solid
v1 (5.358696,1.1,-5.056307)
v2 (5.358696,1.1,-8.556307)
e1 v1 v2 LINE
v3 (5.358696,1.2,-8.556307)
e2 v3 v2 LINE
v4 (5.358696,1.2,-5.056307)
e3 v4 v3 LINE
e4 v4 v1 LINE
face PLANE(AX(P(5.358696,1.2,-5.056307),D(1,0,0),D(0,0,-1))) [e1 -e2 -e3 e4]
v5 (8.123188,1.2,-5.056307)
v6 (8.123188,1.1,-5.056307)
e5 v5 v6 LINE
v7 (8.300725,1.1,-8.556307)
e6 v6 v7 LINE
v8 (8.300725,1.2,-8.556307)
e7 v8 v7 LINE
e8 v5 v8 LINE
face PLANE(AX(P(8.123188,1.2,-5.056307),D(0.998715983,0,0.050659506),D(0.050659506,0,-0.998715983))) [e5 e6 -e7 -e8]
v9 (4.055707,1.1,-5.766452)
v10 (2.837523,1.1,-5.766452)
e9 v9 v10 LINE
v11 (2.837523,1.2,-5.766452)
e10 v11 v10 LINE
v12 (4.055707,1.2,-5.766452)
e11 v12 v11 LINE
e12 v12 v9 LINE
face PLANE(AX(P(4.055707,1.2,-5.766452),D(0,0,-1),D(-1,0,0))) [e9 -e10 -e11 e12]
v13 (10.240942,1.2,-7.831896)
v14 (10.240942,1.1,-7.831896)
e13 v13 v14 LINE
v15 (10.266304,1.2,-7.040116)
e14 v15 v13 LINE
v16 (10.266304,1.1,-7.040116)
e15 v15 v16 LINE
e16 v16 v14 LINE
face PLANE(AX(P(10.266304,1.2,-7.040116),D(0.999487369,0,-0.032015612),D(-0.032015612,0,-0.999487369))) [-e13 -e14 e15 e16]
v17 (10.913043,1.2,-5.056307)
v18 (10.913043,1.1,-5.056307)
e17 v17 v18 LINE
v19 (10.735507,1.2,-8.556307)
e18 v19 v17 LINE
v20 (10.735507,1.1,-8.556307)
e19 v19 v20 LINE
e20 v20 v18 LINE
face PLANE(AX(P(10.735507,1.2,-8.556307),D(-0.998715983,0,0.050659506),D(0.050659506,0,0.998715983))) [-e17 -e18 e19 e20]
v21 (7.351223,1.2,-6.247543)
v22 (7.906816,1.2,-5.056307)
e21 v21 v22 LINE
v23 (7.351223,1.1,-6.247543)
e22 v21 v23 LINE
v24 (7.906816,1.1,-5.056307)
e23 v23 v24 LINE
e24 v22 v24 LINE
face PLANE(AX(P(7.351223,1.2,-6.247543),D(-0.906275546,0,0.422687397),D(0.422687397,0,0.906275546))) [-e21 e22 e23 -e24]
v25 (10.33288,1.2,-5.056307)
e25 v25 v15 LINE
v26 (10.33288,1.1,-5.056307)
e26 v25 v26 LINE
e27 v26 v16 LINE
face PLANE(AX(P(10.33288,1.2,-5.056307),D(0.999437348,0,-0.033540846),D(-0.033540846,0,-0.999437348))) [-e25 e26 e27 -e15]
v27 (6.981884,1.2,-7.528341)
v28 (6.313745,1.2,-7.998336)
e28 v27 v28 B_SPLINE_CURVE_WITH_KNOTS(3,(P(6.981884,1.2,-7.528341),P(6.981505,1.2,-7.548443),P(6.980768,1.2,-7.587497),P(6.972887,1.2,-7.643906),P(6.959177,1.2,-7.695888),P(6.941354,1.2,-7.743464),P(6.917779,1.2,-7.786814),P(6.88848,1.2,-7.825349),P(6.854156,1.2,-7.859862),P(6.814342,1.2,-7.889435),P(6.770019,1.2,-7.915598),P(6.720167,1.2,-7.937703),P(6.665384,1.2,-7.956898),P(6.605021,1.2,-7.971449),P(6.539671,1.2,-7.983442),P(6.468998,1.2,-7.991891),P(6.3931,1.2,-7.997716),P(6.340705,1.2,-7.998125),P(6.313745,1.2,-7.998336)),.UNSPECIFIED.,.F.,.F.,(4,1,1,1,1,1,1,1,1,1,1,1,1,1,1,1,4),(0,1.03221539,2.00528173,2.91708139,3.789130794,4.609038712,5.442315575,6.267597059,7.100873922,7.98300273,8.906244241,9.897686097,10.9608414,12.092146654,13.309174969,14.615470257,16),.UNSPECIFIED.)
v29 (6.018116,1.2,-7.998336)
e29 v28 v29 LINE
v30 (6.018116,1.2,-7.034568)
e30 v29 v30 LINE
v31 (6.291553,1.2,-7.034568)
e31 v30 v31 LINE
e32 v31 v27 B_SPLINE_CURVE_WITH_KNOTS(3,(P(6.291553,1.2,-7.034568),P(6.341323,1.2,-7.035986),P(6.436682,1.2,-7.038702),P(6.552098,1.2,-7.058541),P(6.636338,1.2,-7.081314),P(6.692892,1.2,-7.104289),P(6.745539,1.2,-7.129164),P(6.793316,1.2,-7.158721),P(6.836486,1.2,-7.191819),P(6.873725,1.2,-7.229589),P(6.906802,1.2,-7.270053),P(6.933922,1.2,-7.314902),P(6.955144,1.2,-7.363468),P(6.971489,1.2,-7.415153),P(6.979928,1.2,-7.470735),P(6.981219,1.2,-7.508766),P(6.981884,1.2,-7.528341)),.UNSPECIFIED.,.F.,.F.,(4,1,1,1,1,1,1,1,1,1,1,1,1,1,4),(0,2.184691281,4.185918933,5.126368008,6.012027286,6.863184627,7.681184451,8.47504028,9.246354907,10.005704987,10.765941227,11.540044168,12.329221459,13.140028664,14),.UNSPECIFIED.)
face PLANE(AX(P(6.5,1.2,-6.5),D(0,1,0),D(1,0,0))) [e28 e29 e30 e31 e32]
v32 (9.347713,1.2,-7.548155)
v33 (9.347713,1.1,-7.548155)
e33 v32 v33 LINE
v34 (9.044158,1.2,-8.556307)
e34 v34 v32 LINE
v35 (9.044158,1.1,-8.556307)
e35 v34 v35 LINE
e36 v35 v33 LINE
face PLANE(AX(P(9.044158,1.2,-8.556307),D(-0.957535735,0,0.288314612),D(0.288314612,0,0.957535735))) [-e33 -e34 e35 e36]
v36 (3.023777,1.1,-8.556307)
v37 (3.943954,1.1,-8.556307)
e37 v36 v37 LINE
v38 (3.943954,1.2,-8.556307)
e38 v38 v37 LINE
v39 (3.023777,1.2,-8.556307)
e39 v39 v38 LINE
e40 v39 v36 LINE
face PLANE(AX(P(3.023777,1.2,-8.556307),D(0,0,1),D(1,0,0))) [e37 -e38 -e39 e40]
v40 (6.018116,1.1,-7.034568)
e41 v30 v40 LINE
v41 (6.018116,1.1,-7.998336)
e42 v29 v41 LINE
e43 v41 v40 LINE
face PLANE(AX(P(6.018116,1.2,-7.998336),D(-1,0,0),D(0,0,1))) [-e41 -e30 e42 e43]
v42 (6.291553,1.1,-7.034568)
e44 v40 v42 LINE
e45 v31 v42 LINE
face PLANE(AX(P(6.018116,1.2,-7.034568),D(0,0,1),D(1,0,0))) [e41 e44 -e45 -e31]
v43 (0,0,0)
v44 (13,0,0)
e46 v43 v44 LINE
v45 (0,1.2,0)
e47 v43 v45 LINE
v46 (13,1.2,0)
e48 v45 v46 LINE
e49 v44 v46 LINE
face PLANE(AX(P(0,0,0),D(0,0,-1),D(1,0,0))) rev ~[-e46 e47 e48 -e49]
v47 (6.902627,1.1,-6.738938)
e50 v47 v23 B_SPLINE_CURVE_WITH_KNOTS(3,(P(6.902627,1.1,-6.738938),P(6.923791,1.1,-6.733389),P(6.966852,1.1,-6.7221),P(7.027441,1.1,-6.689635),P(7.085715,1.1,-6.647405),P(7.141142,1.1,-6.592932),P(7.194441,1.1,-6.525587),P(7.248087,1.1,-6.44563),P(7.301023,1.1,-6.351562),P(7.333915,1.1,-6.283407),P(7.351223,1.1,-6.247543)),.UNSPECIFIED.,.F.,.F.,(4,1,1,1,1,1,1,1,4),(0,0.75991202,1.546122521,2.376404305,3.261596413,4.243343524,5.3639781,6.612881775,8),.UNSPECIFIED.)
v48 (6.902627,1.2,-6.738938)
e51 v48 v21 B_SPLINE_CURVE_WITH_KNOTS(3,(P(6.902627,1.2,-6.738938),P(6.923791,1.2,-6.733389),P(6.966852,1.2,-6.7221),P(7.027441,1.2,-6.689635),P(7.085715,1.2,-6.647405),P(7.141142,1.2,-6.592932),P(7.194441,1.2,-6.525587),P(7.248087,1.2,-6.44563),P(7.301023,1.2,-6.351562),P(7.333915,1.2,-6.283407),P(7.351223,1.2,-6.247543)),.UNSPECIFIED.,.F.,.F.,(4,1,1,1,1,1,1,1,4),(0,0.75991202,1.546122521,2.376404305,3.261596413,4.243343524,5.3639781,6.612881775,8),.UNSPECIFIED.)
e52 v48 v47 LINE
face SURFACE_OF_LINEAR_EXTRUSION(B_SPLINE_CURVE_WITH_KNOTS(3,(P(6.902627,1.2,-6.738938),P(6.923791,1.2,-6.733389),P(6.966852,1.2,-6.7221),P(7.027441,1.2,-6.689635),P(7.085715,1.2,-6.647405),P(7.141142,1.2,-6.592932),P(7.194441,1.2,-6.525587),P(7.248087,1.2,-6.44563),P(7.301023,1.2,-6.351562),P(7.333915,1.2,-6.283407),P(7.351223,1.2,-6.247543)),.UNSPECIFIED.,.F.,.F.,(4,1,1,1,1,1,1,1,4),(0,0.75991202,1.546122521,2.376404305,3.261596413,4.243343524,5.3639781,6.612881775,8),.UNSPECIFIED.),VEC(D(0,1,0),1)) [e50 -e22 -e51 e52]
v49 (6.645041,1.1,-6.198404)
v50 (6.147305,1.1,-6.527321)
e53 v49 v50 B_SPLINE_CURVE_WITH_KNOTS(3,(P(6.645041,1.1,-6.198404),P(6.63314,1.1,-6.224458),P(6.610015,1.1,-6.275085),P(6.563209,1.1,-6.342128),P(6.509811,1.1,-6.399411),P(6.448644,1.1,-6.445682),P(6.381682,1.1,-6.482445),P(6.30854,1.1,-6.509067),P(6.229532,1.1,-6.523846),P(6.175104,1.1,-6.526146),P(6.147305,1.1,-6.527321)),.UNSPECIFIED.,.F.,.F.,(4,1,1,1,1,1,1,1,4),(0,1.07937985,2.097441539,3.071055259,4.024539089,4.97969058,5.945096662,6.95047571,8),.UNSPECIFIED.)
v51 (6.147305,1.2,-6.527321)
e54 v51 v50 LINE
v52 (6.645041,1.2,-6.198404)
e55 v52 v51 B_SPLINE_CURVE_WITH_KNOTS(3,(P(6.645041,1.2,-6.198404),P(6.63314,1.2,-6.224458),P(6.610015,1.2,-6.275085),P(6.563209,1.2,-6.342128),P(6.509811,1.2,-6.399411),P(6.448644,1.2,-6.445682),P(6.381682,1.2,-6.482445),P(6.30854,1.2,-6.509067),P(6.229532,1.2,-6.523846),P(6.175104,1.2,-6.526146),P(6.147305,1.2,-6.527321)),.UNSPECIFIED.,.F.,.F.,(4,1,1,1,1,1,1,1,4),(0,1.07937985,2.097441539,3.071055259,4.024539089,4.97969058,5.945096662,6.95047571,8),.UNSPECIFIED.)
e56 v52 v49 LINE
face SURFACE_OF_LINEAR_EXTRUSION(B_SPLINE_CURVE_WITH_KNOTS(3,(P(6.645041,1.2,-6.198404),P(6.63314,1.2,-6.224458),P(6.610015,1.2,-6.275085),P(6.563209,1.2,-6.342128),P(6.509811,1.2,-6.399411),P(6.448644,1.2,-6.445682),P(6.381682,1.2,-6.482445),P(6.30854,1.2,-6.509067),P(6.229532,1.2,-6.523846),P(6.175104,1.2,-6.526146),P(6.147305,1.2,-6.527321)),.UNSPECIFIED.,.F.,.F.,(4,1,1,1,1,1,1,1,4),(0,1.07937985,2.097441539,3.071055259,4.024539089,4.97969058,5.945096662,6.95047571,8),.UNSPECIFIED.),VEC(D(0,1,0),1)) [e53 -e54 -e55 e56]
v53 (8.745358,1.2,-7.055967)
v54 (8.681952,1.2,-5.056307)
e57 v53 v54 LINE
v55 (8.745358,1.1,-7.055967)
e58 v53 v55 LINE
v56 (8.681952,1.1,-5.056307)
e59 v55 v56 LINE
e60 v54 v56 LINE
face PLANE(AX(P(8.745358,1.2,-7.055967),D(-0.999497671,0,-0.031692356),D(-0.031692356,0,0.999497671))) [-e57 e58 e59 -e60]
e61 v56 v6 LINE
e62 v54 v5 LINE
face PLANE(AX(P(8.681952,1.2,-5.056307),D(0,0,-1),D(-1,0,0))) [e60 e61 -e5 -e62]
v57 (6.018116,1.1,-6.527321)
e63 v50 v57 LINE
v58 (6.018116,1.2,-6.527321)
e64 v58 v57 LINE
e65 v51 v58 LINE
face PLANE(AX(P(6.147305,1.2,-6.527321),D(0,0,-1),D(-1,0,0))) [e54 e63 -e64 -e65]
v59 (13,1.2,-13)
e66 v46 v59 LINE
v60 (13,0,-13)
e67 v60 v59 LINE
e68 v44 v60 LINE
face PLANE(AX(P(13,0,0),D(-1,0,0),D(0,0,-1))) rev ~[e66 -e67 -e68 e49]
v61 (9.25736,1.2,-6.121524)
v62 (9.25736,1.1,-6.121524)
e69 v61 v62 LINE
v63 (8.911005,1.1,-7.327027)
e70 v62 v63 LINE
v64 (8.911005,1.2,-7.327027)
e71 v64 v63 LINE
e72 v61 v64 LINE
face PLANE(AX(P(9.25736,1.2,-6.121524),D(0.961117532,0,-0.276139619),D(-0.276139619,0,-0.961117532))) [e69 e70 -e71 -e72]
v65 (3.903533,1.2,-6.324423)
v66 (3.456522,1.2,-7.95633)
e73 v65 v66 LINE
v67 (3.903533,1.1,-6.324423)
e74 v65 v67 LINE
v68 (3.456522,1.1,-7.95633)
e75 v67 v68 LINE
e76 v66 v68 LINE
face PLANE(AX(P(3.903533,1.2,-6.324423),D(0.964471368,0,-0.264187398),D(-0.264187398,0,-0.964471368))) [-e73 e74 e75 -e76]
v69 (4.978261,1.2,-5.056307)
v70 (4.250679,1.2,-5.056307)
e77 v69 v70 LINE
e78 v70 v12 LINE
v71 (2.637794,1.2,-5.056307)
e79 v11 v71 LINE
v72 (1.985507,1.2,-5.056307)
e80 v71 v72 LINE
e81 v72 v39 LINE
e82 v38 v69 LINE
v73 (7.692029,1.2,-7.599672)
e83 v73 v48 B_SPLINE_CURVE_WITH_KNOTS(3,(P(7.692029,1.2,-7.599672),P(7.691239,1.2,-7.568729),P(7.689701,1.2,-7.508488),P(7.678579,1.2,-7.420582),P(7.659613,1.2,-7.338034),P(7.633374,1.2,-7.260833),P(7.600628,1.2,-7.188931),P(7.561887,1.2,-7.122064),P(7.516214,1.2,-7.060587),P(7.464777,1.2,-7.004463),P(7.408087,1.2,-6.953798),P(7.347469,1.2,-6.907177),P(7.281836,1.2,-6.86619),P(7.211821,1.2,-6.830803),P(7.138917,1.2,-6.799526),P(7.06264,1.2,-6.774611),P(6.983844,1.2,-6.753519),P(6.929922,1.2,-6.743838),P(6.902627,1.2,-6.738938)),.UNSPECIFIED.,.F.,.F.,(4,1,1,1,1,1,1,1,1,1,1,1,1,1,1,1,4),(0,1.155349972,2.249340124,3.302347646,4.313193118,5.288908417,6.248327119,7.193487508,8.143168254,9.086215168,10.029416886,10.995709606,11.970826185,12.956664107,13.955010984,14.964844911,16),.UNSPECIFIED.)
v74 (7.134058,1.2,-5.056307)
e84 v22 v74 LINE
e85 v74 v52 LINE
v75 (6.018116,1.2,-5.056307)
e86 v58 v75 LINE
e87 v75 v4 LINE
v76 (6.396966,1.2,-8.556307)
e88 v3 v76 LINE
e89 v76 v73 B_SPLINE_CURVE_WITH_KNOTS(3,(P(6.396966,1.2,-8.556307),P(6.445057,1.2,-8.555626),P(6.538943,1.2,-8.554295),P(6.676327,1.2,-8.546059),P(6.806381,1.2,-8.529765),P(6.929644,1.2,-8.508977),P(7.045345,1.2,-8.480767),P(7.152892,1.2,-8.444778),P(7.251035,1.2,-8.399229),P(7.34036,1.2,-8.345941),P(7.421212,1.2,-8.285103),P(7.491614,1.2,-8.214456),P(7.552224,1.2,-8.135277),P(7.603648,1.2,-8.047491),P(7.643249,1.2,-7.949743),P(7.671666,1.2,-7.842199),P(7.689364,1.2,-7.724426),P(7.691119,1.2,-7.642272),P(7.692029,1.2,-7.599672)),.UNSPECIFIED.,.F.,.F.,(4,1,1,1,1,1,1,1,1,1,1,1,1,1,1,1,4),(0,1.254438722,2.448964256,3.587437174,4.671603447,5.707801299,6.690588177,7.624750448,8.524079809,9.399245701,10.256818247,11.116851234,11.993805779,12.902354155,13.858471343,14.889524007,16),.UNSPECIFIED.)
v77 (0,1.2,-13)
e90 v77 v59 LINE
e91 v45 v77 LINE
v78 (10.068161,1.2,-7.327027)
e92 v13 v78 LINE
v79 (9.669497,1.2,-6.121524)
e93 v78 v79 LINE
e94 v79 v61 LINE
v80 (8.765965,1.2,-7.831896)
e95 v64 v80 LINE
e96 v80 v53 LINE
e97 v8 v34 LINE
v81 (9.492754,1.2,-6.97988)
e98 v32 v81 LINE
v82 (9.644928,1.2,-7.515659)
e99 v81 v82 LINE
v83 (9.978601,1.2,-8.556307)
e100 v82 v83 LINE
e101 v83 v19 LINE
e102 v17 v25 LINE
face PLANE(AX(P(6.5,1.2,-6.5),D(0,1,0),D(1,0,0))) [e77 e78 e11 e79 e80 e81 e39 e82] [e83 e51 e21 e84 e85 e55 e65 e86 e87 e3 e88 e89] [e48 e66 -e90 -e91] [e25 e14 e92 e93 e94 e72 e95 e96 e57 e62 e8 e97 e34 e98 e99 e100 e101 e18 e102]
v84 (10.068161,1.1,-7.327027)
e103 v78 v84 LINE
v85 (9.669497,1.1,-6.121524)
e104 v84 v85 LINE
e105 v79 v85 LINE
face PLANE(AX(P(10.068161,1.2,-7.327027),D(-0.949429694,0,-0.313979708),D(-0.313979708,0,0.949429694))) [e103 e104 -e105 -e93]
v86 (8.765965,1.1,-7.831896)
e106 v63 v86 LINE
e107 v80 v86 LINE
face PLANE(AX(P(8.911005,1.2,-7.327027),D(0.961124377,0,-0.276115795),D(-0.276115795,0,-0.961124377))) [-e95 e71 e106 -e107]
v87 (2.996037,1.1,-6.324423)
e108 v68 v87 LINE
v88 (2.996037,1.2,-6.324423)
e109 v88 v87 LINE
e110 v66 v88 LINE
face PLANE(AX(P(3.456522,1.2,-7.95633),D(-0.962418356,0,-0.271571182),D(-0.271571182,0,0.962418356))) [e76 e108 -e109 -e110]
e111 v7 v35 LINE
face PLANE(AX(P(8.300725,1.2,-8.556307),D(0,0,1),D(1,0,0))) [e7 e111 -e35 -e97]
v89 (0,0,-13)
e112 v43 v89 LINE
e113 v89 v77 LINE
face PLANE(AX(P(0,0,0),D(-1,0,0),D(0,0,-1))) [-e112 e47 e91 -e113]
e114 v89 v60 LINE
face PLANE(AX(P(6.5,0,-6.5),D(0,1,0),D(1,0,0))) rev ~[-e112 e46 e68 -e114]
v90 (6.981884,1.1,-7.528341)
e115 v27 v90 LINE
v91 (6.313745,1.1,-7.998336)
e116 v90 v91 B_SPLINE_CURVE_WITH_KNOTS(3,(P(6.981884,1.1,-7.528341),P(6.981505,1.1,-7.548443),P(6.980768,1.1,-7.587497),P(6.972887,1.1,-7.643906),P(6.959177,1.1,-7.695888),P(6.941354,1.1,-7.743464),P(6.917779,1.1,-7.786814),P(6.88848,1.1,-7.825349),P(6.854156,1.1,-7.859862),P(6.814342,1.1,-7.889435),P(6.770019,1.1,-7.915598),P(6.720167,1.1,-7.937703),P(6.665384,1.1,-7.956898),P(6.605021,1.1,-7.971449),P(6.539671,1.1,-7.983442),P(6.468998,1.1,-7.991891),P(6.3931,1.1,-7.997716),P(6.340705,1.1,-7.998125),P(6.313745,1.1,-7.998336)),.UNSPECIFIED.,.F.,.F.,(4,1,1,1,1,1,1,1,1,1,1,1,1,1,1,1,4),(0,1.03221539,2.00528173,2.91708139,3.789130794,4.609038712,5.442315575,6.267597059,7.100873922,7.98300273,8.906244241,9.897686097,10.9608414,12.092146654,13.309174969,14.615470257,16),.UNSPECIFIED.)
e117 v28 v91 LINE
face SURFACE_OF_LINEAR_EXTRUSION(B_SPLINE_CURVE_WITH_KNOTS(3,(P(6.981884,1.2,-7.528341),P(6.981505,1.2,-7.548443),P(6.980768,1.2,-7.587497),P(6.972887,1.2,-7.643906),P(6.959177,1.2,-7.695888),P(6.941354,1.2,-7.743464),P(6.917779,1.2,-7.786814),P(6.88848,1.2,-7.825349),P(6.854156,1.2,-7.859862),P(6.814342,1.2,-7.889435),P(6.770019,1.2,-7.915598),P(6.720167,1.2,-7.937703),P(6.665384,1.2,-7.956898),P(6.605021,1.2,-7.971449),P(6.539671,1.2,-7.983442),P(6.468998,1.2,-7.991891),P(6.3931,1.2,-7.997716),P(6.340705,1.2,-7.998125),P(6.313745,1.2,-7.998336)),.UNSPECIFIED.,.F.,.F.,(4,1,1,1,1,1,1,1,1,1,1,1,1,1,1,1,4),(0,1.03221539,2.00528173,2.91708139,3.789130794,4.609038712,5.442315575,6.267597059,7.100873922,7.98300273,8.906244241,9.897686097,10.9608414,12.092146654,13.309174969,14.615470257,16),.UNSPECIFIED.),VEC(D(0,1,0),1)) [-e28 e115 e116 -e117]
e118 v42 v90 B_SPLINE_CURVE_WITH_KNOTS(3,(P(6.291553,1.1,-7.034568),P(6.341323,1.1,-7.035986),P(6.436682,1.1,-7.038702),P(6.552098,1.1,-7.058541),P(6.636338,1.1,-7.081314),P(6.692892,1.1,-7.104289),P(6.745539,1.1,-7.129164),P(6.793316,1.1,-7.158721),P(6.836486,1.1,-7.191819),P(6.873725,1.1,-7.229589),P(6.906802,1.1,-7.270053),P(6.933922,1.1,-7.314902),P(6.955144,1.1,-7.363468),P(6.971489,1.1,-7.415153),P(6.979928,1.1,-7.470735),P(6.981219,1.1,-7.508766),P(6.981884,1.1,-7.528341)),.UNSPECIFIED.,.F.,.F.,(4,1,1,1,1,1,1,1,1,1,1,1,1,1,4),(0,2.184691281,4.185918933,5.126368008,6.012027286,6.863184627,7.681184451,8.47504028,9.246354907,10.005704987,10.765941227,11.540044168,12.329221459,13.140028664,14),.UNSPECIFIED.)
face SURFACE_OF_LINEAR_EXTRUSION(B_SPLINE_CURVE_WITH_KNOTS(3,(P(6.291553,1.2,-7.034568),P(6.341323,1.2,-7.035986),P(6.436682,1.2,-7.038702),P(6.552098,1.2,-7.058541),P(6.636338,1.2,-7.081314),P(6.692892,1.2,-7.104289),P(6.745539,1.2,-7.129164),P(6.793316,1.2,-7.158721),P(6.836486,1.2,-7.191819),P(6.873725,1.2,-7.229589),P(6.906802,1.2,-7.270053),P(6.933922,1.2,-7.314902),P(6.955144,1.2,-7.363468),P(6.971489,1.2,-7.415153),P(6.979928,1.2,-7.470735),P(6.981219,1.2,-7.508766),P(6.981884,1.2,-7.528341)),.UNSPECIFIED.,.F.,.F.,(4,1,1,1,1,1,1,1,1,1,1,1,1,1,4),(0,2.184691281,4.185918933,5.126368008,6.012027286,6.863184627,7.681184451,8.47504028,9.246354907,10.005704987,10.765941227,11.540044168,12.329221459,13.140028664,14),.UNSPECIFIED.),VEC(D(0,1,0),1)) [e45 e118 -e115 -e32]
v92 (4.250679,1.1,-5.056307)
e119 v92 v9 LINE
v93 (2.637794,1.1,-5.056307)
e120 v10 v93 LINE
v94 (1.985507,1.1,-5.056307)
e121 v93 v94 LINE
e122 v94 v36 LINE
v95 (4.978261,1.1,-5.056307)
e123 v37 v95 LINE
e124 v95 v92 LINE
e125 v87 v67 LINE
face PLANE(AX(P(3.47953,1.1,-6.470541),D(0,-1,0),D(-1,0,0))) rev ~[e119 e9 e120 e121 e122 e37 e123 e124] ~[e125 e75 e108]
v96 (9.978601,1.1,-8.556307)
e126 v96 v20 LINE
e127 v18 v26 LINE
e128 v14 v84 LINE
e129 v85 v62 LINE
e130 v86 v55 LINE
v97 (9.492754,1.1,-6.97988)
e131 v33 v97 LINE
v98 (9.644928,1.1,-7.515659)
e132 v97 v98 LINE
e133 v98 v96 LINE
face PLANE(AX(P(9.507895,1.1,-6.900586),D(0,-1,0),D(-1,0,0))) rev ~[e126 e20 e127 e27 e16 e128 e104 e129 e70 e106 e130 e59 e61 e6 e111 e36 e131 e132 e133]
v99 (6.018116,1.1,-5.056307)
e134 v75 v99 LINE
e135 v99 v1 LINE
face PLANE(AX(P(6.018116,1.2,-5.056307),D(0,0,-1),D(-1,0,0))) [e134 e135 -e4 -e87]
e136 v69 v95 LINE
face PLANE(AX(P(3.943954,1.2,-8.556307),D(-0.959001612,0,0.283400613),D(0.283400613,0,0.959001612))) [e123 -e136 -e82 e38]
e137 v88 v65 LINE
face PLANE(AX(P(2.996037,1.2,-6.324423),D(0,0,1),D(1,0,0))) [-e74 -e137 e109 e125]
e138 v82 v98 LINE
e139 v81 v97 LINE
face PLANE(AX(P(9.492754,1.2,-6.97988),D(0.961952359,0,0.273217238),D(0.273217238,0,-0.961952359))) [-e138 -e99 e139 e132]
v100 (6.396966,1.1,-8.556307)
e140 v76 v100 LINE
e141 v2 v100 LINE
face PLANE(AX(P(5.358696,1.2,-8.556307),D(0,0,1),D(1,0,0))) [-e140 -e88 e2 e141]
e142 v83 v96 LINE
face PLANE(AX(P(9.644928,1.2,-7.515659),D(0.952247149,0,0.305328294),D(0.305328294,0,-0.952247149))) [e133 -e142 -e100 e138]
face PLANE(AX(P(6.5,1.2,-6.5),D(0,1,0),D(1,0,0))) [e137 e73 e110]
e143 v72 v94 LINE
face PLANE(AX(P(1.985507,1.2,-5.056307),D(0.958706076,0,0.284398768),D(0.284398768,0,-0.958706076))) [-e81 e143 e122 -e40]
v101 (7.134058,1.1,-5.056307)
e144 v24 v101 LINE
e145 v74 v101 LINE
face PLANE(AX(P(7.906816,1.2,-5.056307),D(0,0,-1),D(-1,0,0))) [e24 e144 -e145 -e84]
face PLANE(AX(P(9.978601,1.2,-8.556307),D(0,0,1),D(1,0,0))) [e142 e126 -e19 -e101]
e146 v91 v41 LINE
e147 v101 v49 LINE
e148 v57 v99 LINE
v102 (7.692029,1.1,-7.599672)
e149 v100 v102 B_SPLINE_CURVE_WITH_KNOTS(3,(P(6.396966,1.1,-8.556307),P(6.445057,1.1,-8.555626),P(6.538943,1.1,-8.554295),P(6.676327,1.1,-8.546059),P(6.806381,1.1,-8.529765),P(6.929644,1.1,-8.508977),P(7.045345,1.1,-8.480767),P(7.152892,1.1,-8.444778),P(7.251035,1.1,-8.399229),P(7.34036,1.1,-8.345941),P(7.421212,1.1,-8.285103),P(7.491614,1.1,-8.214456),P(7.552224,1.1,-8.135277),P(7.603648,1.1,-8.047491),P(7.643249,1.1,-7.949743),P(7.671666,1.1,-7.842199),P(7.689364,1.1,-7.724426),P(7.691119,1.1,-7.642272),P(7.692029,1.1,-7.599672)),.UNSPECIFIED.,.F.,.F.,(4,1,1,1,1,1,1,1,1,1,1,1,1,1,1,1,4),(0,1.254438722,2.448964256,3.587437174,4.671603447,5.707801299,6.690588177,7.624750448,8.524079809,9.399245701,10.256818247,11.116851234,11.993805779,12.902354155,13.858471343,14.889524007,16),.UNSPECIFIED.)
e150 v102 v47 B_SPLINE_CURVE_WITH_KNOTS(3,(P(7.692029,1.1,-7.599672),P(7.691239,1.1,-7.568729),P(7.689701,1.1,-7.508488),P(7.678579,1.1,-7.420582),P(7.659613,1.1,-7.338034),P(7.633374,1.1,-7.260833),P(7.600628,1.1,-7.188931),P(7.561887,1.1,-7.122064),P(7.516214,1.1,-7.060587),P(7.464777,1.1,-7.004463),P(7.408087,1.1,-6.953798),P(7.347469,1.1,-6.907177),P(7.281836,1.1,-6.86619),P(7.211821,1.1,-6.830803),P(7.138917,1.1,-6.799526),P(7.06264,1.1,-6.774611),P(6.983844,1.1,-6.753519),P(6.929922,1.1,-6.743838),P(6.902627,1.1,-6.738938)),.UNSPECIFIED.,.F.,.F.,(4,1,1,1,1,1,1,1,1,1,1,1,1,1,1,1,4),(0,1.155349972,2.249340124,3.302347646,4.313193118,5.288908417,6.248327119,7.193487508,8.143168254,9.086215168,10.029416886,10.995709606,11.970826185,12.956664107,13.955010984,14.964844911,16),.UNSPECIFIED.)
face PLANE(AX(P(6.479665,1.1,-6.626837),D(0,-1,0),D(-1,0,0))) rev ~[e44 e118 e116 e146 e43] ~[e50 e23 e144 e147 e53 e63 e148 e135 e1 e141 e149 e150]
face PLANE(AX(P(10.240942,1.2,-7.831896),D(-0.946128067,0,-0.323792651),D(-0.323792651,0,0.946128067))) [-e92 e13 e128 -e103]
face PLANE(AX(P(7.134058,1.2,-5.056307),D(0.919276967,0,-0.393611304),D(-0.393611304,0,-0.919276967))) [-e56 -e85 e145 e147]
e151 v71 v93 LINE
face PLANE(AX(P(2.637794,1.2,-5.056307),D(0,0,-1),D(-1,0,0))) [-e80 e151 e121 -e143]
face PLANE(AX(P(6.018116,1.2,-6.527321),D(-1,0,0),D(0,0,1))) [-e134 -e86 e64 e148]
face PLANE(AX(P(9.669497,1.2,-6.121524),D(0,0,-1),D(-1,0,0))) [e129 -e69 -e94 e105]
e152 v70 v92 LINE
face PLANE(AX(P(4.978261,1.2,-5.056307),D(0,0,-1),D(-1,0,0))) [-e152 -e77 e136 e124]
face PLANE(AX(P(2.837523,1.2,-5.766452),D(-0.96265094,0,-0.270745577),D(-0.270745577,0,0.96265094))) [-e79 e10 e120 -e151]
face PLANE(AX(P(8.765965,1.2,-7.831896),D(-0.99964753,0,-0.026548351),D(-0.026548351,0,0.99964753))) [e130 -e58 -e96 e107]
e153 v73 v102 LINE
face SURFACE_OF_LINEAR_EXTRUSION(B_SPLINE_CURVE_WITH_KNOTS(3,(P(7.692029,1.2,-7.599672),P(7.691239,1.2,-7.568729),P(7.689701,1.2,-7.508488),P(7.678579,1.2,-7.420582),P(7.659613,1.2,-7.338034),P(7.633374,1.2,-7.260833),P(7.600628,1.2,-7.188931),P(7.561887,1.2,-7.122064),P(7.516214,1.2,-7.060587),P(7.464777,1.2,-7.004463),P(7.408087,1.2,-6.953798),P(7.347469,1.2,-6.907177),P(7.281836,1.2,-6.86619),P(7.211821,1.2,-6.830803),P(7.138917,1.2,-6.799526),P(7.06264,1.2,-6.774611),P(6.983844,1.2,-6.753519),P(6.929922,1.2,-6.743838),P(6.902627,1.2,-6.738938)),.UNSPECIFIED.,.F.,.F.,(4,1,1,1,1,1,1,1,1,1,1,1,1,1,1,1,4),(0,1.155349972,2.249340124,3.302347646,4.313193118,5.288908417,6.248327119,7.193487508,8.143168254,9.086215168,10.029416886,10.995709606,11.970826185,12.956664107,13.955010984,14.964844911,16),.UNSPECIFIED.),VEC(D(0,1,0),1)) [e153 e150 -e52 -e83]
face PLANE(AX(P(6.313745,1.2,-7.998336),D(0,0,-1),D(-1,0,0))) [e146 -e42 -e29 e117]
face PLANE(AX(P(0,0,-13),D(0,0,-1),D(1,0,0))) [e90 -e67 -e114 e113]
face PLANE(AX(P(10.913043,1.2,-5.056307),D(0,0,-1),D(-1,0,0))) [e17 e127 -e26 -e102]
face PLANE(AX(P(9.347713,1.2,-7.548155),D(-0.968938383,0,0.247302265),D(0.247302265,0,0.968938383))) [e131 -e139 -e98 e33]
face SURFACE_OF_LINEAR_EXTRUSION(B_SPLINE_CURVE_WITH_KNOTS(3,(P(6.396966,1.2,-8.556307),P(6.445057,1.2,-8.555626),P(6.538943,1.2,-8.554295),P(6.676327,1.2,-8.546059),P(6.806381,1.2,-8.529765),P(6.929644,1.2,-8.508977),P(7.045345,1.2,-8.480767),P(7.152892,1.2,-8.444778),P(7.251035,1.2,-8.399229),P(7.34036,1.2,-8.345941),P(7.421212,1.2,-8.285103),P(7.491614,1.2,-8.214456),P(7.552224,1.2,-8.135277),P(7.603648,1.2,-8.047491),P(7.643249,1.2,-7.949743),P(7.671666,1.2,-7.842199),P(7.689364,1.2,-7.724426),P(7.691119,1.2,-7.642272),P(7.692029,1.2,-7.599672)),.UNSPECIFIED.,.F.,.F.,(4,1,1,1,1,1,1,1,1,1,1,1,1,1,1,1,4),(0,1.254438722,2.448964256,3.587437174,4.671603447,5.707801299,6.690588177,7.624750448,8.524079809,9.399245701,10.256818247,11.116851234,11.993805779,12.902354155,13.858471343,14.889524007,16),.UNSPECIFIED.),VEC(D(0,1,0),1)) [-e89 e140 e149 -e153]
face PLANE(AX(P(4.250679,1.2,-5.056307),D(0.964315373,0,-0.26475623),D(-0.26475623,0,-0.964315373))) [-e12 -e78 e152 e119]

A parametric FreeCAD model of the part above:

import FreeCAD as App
import Part
import Sketcher
Q = App.Units.Quantity

doc = App.newDocument("Part")
body = doc.addObject("PartDesign::Body", "Body")

# Sketch on XZ plane
sketch1 = body.newObject("Sketcher::SketchObject", "Sketch")
sketch1.AttachmentSupport = (doc.getObject("XZ_Plane"), [""])
sketch1.MapMode = "FlatFace"
sketch1.addGeometry(Part.LineSegment(App.Vector(0, -13, 0), App.Vector(0, 0, 0)), False)
sketch1.addGeometry(Part.LineSegment(App.Vector(0, 0, 0), App.Vector(13, 0, 0)), False)
sketch1.addGeometry(Part.LineSegment(App.Vector(13, 0, 0), App.Vector(13, -13, 0)), False)
sketch1.addGeometry(Part.LineSegment(App.Vector(13, -13, 0), App.Vector(0, -13, 0)), False)
sketch1.addConstraint(Sketcher.Constraint("Coincident", 0, 2, 1, 1))
sketch1.addConstraint(Sketcher.Constraint("Coincident", 1, 2, 2, 1))
sketch1.addConstraint(Sketcher.Constraint("Coincident", 2, 2, 3, 1))
sketch1.addConstraint(Sketcher.Constraint("Coincident", 3, 2, 0, 1))
sketch1.addConstraint(Sketcher.Constraint("Vertical", 0))
sketch1.addConstraint(Sketcher.Constraint("Horizontal", 1))
sketch1.addConstraint(Sketcher.Constraint("Vertical", 2))
sketch1.addConstraint(Sketcher.Constraint("Horizontal", 3))
sketch1.addConstraint(Sketcher.Constraint("Coincident", 0, 2, -1, 1))
sketch1.addConstraint(Sketcher.Constraint("Equal", 3, 0))
sketch1.addConstraint(Sketcher.Constraint("DistanceX", 1, 1, 1, 2, Q("13 mm")))
pad1 = body.newObject("PartDesign::Pad", "Pad")
pad1.Profile = sketch1
pad1.Length = 1.2
pad1.Reversed = True

# Sketch on XZ plane
sketch2 = body.newObject("Sketcher::SketchObject", "Sketch001")
sketch2.AttachmentSupport = (doc.getObject("XZ_Plane"), [""])
sketch2.MapMode = "FlatFace"
sketch2.AttachmentOffset = App.Placement(App.Vector(0, 0, -1.2), App.Rotation())
sketch2.addGeometry(Part.LineSegment(App.Vector(4.055707, -5.766452, 0), App.Vector(4.250679, -5.056307, 0)), False)
sketch2.addGeometry(Part.LineSegment(App.Vector(4.250679, -5.056307, 0), App.Vector(4.978261, -5.056307, 0)), False)
sketch2.addGeometry(Part.LineSegment(App.Vector(4.978261, -5.056307, 0), App.Vector(3.943954, -8.556307, 0)), False)
sketch2.addGeometry(Part.LineSegment(App.Vector(3.943954, -8.556307, 0), App.Vector(3.023777, -8.556307, 0)), False)
sketch2.addGeometry(Part.LineSegment(App.Vector(3.023777, -8.556307, 0), App.Vector(1.985507, -5.056307, 0)), False)
sketch2.addGeometry(Part.LineSegment(App.Vector(1.985507, -5.056307, 0), App.Vector(2.637794, -5.056307, 0)), False)
sketch2.addGeometry(Part.LineSegment(App.Vector(2.637794, -5.056307, 0), App.Vector(2.837523, -5.766452, 0)), False)
sketch2.addGeometry(Part.LineSegment(App.Vector(2.837523, -5.766452, 0), App.Vector(4.055707, -5.766452, 0)), False)
sketch2.addGeometry(Part.LineSegment(App.Vector(3.456522, -7.95633, 0), App.Vector(3.903533, -6.324423, 0)), False)
sketch2.addGeometry(Part.LineSegment(App.Vector(3.903533, -6.324423, 0), App.Vector(2.996037, -6.324423, 0)), False)
sketch2.addGeometry(Part.LineSegment(App.Vector(2.996037, -6.324423, 0), App.Vector(3.456522, -7.95633, 0)), False)
sketch2.addGeometry(Part.LineSegment(App.Vector(6.645041, -6.198404, 0), App.Vector(7.134058, -5.056307, 0)), False)
sketch2.addGeometry(Part.LineSegment(App.Vector(7.134058, -5.056307, 0), App.Vector(7.906816, -5.056307, 0)), False)
sketch2.addGeometry(Part.LineSegment(App.Vector(7.906816, -5.056307, 0), App.Vector(7.351223, -6.247543, 0)), False)
sketch2.addGeometry(Part.BSplineCurve([App.Vector(6.902627, -6.738938, 0), App.Vector(6.923791, -6.733389, 0), App.Vector(6.966852, -6.7221, 0), App.Vector(7.027441, -6.689635, 0), App.Vector(7.085715, -6.647405, 0), App.Vector(7.141142, -6.592932, 0), App.Vector(7.194441, -6.525587, 0), App.Vector(7.248087, -6.44563, 0), App.Vector(7.301023, -6.351562, 0), App.Vector(7.333915, -6.283407, 0), App.Vector(7.351223, -6.247543, 0)], [4, 1, 1, 1, 1, 1, 1, 1, 4], [0, 0.75991202, 1.546122521, 2.376404305, 3.261596413, 4.243343524, 5.3639781, 6.612881775, 8], False, 3, [1, 1, 1, 1, 1, 1, 1, 1, 1, 1, 1], False), False)
sketch2.addGeometry(Part.BSplineCurve([App.Vector(7.692029, -7.599672, 0), App.Vector(7.691239, -7.568729, 0), App.Vector(7.689701, -7.508488, 0), App.Vector(7.678579, -7.420582, 0), App.Vector(7.659613, -7.338034, 0), App.Vector(7.633374, -7.260833, 0), App.Vector(7.600628, -7.188931, 0), App.Vector(7.561887, -7.122064, 0), App.Vector(7.516214, -7.060587, 0), App.Vector(7.464777, -7.004463, 0), App.Vector(7.408087, -6.953798, 0), App.Vector(7.347469, -6.907177, 0), App.Vector(7.281836, -6.86619, 0), App.Vector(7.211821, -6.830803, 0), App.Vector(7.138917, -6.799526, 0), App.Vector(7.06264, -6.774611, 0), App.Vector(6.983844, -6.753519, 0), App.Vector(6.929922, -6.743838, 0), App.Vector(6.902627, -6.738938, 0)], [4, 1, 1, 1, 1, 1, 1, 1, 1, 1, 1, 1, 1, 1, 1, 1, 4], [0, 1.155349972, 2.249340124, 3.302347646, 4.313193118, 5.288908417, 6.248327119, 7.193487508, 8.143168254, 9.086215168, 10.029416886, 10.995709606, 11.970826185, 12.956664107, 13.955010984, 14.964844911, 16], False, 3, [1, 1, 1, 1, 1, 1, 1, 1, 1, 1, 1, 1, 1, 1, 1, 1, 1, 1, 1], False), False)
sketch2.addGeometry(Part.BSplineCurve([App.Vector(6.396966, -8.556307, 0), App.Vector(6.445057, -8.555626, 0), App.Vector(6.538943, -8.554295, 0), App.Vector(6.676327, -8.546059, 0), App.Vector(6.806381, -8.529765, 0), App.Vector(6.929644, -8.508977, 0), App.Vector(7.045345, -8.480767, 0), App.Vector(7.152892, -8.444778, 0), App.Vector(7.251035, -8.399229, 0), App.Vector(7.34036, -8.345941, 0), App.Vector(7.421212, -8.285103, 0), App.Vector(7.491614, -8.214456, 0), App.Vector(7.552224, -8.135277, 0), App.Vector(7.603648, -8.047491, 0), App.Vector(7.643249, -7.949743, 0), App.Vector(7.671666, -7.842199, 0), App.Vector(7.689364, -7.724426, 0), App.Vector(7.691119, -7.642272, 0), App.Vector(7.692029, -7.599672, 0)], [4, 1, 1, 1, 1, 1, 1, 1, 1, 1, 1, 1, 1, 1, 1, 1, 4], [0, 1.254438722, 2.448964256, 3.587437174, 4.671603447, 5.707801299, 6.690588177, 7.624750448, 8.524079809, 9.399245701, 10.256818247, 11.116851234, 11.993805779, 12.902354155, 13.858471343, 14.889524007, 16], False, 3, [1, 1, 1, 1, 1, 1, 1, 1, 1, 1, 1, 1, 1, 1, 1, 1, 1, 1, 1], False), False)
sketch2.addGeometry(Part.LineSegment(App.Vector(6.396966, -8.556307, 0), App.Vector(5.358696, -8.556307, 0)), False)
sketch2.addGeometry(Part.LineSegment(App.Vector(5.358696, -8.556307, 0), App.Vector(5.358696, -5.056307, 0)), False)
sketch2.addGeometry(Part.LineSegment(App.Vector(5.358696, -5.056307, 0), App.Vector(6.018116, -5.056307, 0)), False)
sketch2.addGeometry(Part.LineSegment(App.Vector(6.018116, -5.056307, 0), App.Vector(6.018116, -6.527321, 0)), False)
sketch2.addGeometry(Part.LineSegment(App.Vector(6.018116, -6.527321, 0), App.Vector(6.147305, -6.527321, 0)), False)
sketch2.addGeometry(Part.BSplineCurve([App.Vector(6.645041, -6.198404, 0), App.Vector(6.63314, -6.224458, 0), App.Vector(6.610015, -6.275085, 0), App.Vector(6.563209, -6.342128, 0), App.Vector(6.509811, -6.399411, 0), App.Vector(6.448644, -6.445682, 0), App.Vector(6.381682, -6.482445, 0), App.Vector(6.30854, -6.509067, 0), App.Vector(6.229532, -6.523846, 0), App.Vector(6.175104, -6.526146, 0), App.Vector(6.147305, -6.527321, 0)], [4, 1, 1, 1, 1, 1, 1, 1, 4], [0, 1.07937985, 2.097441539, 3.071055259, 4.024539089, 4.97969058, 5.945096662, 6.95047571, 8], False, 3, [1, 1, 1, 1, 1, 1, 1, 1, 1, 1, 1], False), False)
sketch2.addGeometry(Part.BSplineCurve([App.Vector(6.291553, -7.034568, 0), App.Vector(6.341323, -7.035986, 0), App.Vector(6.436682, -7.038702, 0), App.Vector(6.552098, -7.058541, 0), App.Vector(6.636338, -7.081314, 0), App.Vector(6.692892, -7.104289, 0), App.Vector(6.745539, -7.129164, 0), App.Vector(6.793316, -7.158721, 0), App.Vector(6.836486, -7.191819, 0), App.Vector(6.873725, -7.229589, 0), App.Vector(6.906802, -7.270053, 0), App.Vector(6.933922, -7.314902, 0), App.Vector(6.955144, -7.363468, 0), App.Vector(6.971489, -7.415153, 0), App.Vector(6.979928, -7.470735, 0), App.Vector(6.981219, -7.508766, 0), App.Vector(6.981884, -7.528341, 0)], [4, 1, 1, 1, 1, 1, 1, 1, 1, 1, 1, 1, 1, 1, 4], [0, 2.184691281, 4.185918933, 5.126368008, 6.012027286, 6.863184627, 7.681184451, 8.47504028, 9.246354907, 10.005704987, 10.765941227, 11.540044168, 12.329221459, 13.140028664, 14], False, 3, [1, 1, 1, 1, 1, 1, 1, 1, 1, 1, 1, 1, 1, 1, 1, 1, 1], False), False)
sketch2.addGeometry(Part.LineSegment(App.Vector(6.291553, -7.034568, 0), App.Vector(6.018116, -7.034568, 0)), False)
sketch2.addGeometry(Part.LineSegment(App.Vector(6.018116, -7.034568, 0), App.Vector(6.018116, -7.998336, 0)), False)
sketch2.addGeometry(Part.LineSegment(App.Vector(6.018116, -7.998336, 0), App.Vector(6.313745, -7.998336, 0)), False)
sketch2.addGeometry(Part.BSplineCurve([App.Vector(6.981884, -7.528341, 0), App.Vector(6.981505, -7.548443, 0), App.Vector(6.980768, -7.587497, 0), App.Vector(6.972887, -7.643906, 0), App.Vector(6.959177, -7.695888, 0), App.Vector(6.941354, -7.743464, 0), App.Vector(6.917779, -7.786814, 0), App.Vector(6.88848, -7.825349, 0), App.Vector(6.854156, -7.859862, 0), App.Vector(6.814342, -7.889435, 0), App.Vector(6.770019, -7.915598, 0), App.Vector(6.720167, -7.937703, 0), App.Vector(6.665384, -7.956898, 0), App.Vector(6.605021, -7.971449, 0), App.Vector(6.539671, -7.983442, 0), App.Vector(6.468998, -7.991891, 0), App.Vector(6.3931, -7.997716, 0), App.Vector(6.340705, -7.998125, 0), App.Vector(6.313745, -7.998336, 0)], [4, 1, 1, 1, 1, 1, 1, 1, 1, 1, 1, 1, 1, 1, 1, 1, 4], [0, 1.03221539, 2.00528173, 2.91708139, 3.789130794, 4.609038712, 5.442315575, 6.267597059, 7.100873922, 7.98300273, 8.906244241, 9.897686097, 10.9608414, 12.092146654, 13.309174969, 14.615470257, 16], False, 3, [1, 1, 1, 1, 1, 1, 1, 1, 1, 1, 1, 1, 1, 1, 1, 1, 1, 1, 1], False), False)
sketch2.addGeometry(Part.LineSegment(App.Vector(10.266304, -7.040116, 0), App.Vector(10.33288, -5.056307, 0)), False)
sketch2.addGeometry(Part.LineSegment(App.Vector(10.33288, -5.056307, 0), App.Vector(10.913043, -5.056307, 0)), False)
sketch2.addGeometry(Part.LineSegment(App.Vector(10.913043, -5.056307, 0), App.Vector(10.735507, -8.556307, 0)), False)
sketch2.addGeometry(Part.LineSegment(App.Vector(10.735507, -8.556307, 0), App.Vector(9.978601, -8.556307, 0)), False)
sketch2.addGeometry(Part.LineSegment(App.Vector(9.978601, -8.556307, 0), App.Vector(9.644928, -7.515659, 0)), False)
sketch2.addGeometry(Part.LineSegment(App.Vector(9.644928, -7.515659, 0), App.Vector(9.492754, -6.97988, 0)), False)
sketch2.addGeometry(Part.LineSegment(App.Vector(9.492754, -6.97988, 0), App.Vector(9.347713, -7.548155, 0)), False)
sketch2.addGeometry(Part.LineSegment(App.Vector(9.347713, -7.548155, 0), App.Vector(9.044158, -8.556307, 0)), False)
sketch2.addGeometry(Part.LineSegment(App.Vector(9.044158, -8.556307, 0), App.Vector(8.300725, -8.556307, 0)), False)
sketch2.addGeometry(Part.LineSegment(App.Vector(8.300725, -8.556307, 0), App.Vector(8.123188, -5.056307, 0)), False)
sketch2.addGeometry(Part.LineSegment(App.Vector(8.123188, -5.056307, 0), App.Vector(8.681952, -5.056307, 0)), False)
sketch2.addGeometry(Part.LineSegment(App.Vector(8.681952, -5.056307, 0), App.Vector(8.745358, -7.055967, 0)), False)
sketch2.addGeometry(Part.LineSegment(App.Vector(8.745358, -7.055967, 0), App.Vector(8.765965, -7.831896, 0)), False)
sketch2.addGeometry(Part.LineSegment(App.Vector(8.765965, -7.831896, 0), App.Vector(8.911005, -7.327027, 0)), False)
sketch2.addGeometry(Part.LineSegment(App.Vector(8.911005, -7.327027, 0), App.Vector(9.25736, -6.121524, 0)), False)
sketch2.addGeometry(Part.LineSegment(App.Vector(9.25736, -6.121524, 0), App.Vector(9.669497, -6.121524, 0)), False)
sketch2.addGeometry(Part.LineSegment(App.Vector(9.669497, -6.121524, 0), App.Vector(10.068161, -7.327027, 0)), False)
sketch2.addGeometry(Part.LineSegment(App.Vector(10.068161, -7.327027, 0), App.Vector(10.240942, -7.831896, 0)), False)
sketch2.addGeometry(Part.LineSegment(App.Vector(10.240942, -7.831896, 0), App.Vector(10.266304, -7.040116, 0)), False)
sketch2.addConstraint(Sketcher.Constraint("Block", 14))
sketch2.addConstraint(Sketcher.Constraint("Block", 15))
sketch2.addConstraint(Sketcher.Constraint("Block", 16))
sketch2.addConstraint(Sketcher.Constraint("Block", 22))
sketch2.addConstraint(Sketcher.Constraint("Block", 23))
sketch2.addConstraint(Sketcher.Constraint("Block", 27))
sketch2.addConstraint(Sketcher.Constraint("Coincident", 0, 2, 1, 1))
sketch2.addConstraint(Sketcher.Constraint("Coincident", 1, 2, 2, 1))
sketch2.addConstraint(Sketcher.Constraint("Coincident", 2, 2, 3, 1))
sketch2.addConstraint(Sketcher.Constraint("Coincident", 3, 2, 4, 1))
sketch2.addConstraint(Sketcher.Constraint("Coincident", 4, 2, 5, 1))
sketch2.addConstraint(Sketcher.Constraint("Coincident", 5, 2, 6, 1))
sketch2.addConstraint(Sketcher.Constraint("Coincident", 6, 2, 7, 1))
sketch2.addConstraint(Sketcher.Constraint("Coincident", 7, 2, 0, 1))
sketch2.addConstraint(Sketcher.Constraint("Coincident", 8, 2, 9, 1))
sketch2.addConstraint(Sketcher.Constraint("Coincident", 9, 2, 10, 1))
sketch2.addConstraint(Sketcher.Constraint("Coincident", 10, 2, 8, 1))
sketch2.addConstraint(Sketcher.Constraint("Coincident", 11, 2, 12, 1))
sketch2.addConstraint(Sketcher.Constraint("Coincident", 12, 2, 13, 1))
sketch2.addConstraint(Sketcher.Constraint("Coincident", 13, 2, 14, 2))
sketch2.addConstraint(Sketcher.Constraint("Coincident", 16, 1, 17, 1))
sketch2.addConstraint(Sketcher.Constraint("Coincident", 17, 2, 18, 1))
sketch2.addConstraint(Sketcher.Constraint("Coincident", 18, 2, 19, 1))
sketch2.addConstraint(Sketcher.Constraint("Coincident", 19, 2, 20, 1))
sketch2.addConstraint(Sketcher.Constraint("Coincident", 20, 2, 21, 1))
sketch2.addConstraint(Sketcher.Constraint("Coincident", 21, 2, 22, 2))
sketch2.addConstraint(Sketcher.Constraint("Coincident", 22, 1, 11, 1))
sketch2.addConstraint(Sketcher.Constraint("Coincident", 23, 1, 24, 1))
sketch2.addConstraint(Sketcher.Constraint("Coincident", 24, 2, 25, 1))
sketch2.addConstraint(Sketcher.Constraint("Coincident", 25, 2, 26, 1))
sketch2.addConstraint(Sketcher.Constraint("Coincident", 26, 2, 27, 2))
sketch2.addConstraint(Sketcher.Constraint("Coincident", 28, 2, 29, 1))
sketch2.addConstraint(Sketcher.Constraint("Coincident", 29, 2, 30, 1))
sketch2.addConstraint(Sketcher.Constraint("Coincident", 30, 2, 31, 1))
sketch2.addConstraint(Sketcher.Constraint("Coincident", 31, 2, 32, 1))
sketch2.addConstraint(Sketcher.Constraint("Coincident", 32, 2, 33, 1))
sketch2.addConstraint(Sketcher.Constraint("Coincident", 33, 2, 34, 1))
sketch2.addConstraint(Sketcher.Constraint("Coincident", 34, 2, 35, 1))
sketch2.addConstraint(Sketcher.Constraint("Coincident", 35, 2, 36, 1))
sketch2.addConstraint(Sketcher.Constraint("Coincident", 36, 2, 37, 1))
sketch2.addConstraint(Sketcher.Constraint("Coincident", 37, 2, 38, 1))
sketch2.addConstraint(Sketcher.Constraint("Coincident", 38, 2, 39, 1))
sketch2.addConstraint(Sketcher.Constraint("Coincident", 39, 2, 40, 1))
sketch2.addConstraint(Sketcher.Constraint("Coincident", 40, 2, 41, 1))
sketch2.addConstraint(Sketcher.Constraint("Coincident", 41, 2, 42, 1))
sketch2.addConstraint(Sketcher.Constraint("Coincident", 42, 2, 43, 1))
sketch2.addConstraint(Sketcher.Constraint("Coincident", 43, 2, 44, 1))
sketch2.addConstraint(Sketcher.Constraint("Coincident", 44, 2, 45, 1))
sketch2.addConstraint(Sketcher.Constraint("Coincident", 45, 2, 46, 1))
sketch2.addConstraint(Sketcher.Constraint("Coincident", 46, 2, 28, 1))
sketch2.addConstraint(Sketcher.Constraint("Horizontal", 1))
sketch2.addConstraint(Sketcher.Constraint("Horizontal", 3))
sketch2.addConstraint(Sketcher.Constraint("Horizontal", 5))
sketch2.addConstraint(Sketcher.Constraint("Horizontal", 7))
sketch2.addConstraint(Sketcher.Constraint("Horizontal", 9))
sketch2.addConstraint(Sketcher.Constraint("Horizontal", 12))
sketch2.addConstraint(Sketcher.Constraint("Horizontal", 17))
sketch2.addConstraint(Sketcher.Constraint("Vertical", 18))
sketch2.addConstraint(Sketcher.Constraint("Horizontal", 19))
sketch2.addConstraint(Sketcher.Constraint("Vertical", 20))
sketch2.addConstraint(Sketcher.Constraint("Horizontal", 21))
sketch2.addConstraint(Sketcher.Constraint("Horizontal", 24))
sketch2.addConstraint(Sketcher.Constraint("Vertical", 25))
sketch2.addConstraint(Sketcher.Constraint("Horizontal", 26))
sketch2.addConstraint(Sketcher.Constraint("Horizontal", 29))
sketch2.addConstraint(Sketcher.Constraint("Horizontal", 31))
sketch2.addConstraint(Sketcher.Constraint("Horizontal", 36))
sketch2.addConstraint(Sketcher.Constraint("Horizontal", 38))
sketch2.addConstraint(Sketcher.Constraint("Horizontal", 43))
sketch2.addConstraint(Sketcher.Constraint("DistanceY", 18, 1, 18, 2, Q("3.5 mm")))
sketch2.addConstraint(Sketcher.Constraint("DistanceY", 2, 2, 0, 2, Q("3.5 mm")))
sketch2.addConstraint(Sketcher.Constraint("DistanceY", 3, 2, 4, 2, Q("3.5 mm")))
sketch2.addConstraint(Sketcher.Constraint("DistanceY", 30, 2, 29, 2, Q("3.5 mm")))
sketch2.addConstraint(Sketcher.Constraint("DistanceY", 30, 2, 12, 2, Q("3.5 mm")))
sketch2.addConstraint(Sketcher.Constraint("DistanceX", 39, 2, 42, 2, Q("0.512002 mm")))
sketch2.addConstraint(Sketcher.Constraint("Distance", 30, Q("3.5045 mm")))
sketch2.addConstraint(Sketcher.Constraint("Distance", 37, Q("3.5045 mm")))
sketch2.addConstraint(Sketcher.Constraint("DistanceX", 1, 1, 1, 2, Q("0.727582 mm")))
sketch2.addConstraint(Sketcher.Constraint("DistanceX", 12, 1, 12, 2, Q("0.772758 mm")))
sketch2.addConstraint(Sketcher.Constraint("DistanceX", 17, 2, 17, 1, Q("1.03827 mm")))
sketch2.addConstraint(Sketcher.Constraint("DistanceX", 19, 1, 19, 2, Q("0.65942 mm")))
sketch2.addConstraint(Sketcher.Constraint("DistanceX", 26, 1, 26, 2, Q("0.29563 mm")))
sketch2.addConstraint(Sketcher.Constraint("DistanceX", -1, 1, 31, 2, Q("9.978601 mm")))
sketch2.addConstraint(Sketcher.Constraint("DistanceX", 4, 2, 7, 2, Q("2.070199 mm")))
sketch2.addConstraint(Sketcher.Constraint("DistanceX", 39, 2, 35, 2, Q("0.2988 mm")))
sketch2.addConstraint(Sketcher.Constraint("Distance", 2, Q("3.649629 mm")))
sketch2.addConstraint(Sketcher.Constraint("Distance", 8, Q("1.692022 mm")))
sketch2.addConstraint(Sketcher.Constraint("Distance", 10, Q("1.695631 mm")))
sketch2.addConstraint(Sketcher.Constraint("Distance", 13, Q("1.314431 mm")))
sketch2.addConstraint(Sketcher.Constraint("Distance", 33, Q("0.55697 mm")))
sketch2.addConstraint(Sketcher.Constraint("Distance", 34, Q("0.586492 mm")))
sketch2.addConstraint(Sketcher.Constraint("Distance", 35, Q("1.052861 mm")))
sketch2.addConstraint(Sketcher.Constraint("Distance", 41, Q("0.52529 mm")))
sketch2.addConstraint(Sketcher.Constraint("Distance", 42, Q("1.254272 mm")))
sketch2.addConstraint(Sketcher.Constraint("DistanceX", 3, 2, 3, 1, Q("0.920177 mm")))
sketch2.addConstraint(Sketcher.Constraint("DistanceX", 5, 1, 5, 2, Q("0.652287 mm")))
sketch2.addConstraint(Sketcher.Constraint("DistanceX", 7, 1, 7, 2, Q("1.218184 mm")))
sketch2.addConstraint(Sketcher.Constraint("DistanceX", 9, 2, 9, 1, Q("0.907495 mm")))
sketch2.addConstraint(Sketcher.Constraint("DistanceX", 29, 1, 29, 2, Q("0.580163 mm")))
sketch2.addConstraint(Sketcher.Constraint("DistanceX", 31, 2, 31, 1, Q("0.756907 mm")))
sketch2.addConstraint(Sketcher.Constraint("DistanceX", 36, 2, 36, 1, Q("0.743433 mm")))
sketch2.addConstraint(Sketcher.Constraint("DistanceX", 38, 1, 38, 2, Q("0.558764 mm")))
sketch2.addConstraint(Sketcher.Constraint("DistanceX", 43, 1, 43, 2, Q("0.412138 mm")))
sketch2.addConstraint(Sketcher.Constraint("DistanceX", -1, 1, 0, 2, Q("4.250679 mm")))
sketch2.addConstraint(Sketcher.Constraint("DistanceY", 6, 2, -1, 1, Q("5.766452 mm")))
sketch2.addConstraint(Sketcher.Constraint("DistanceX", -1, 1, 10, 2, Q("3.456522 mm")))
sketch2.addConstraint(Sketcher.Constraint("DistanceY", 10, 2, -1, 1, Q("7.95633 mm")))
sketch2.addConstraint(Sketcher.Constraint("DistanceY", 32, 2, -1, 1, Q("7.515659 mm")))
sketch2.addConstraint(Sketcher.Constraint("DistanceY", 33, 2, -1, 1, Q("6.97988 mm")))
sketch2.addConstraint(Sketcher.Constraint("DistanceX", -1, 1, 37, 2, Q("8.123188 mm")))
sketch2.addConstraint(Sketcher.Constraint("DistanceX", -1, 1, 42, 2, Q("9.25736 mm")))
sketch2.addConstraint(Sketcher.Constraint("DistanceX", -1, 1, 44, 2, Q("10.068161 mm")))
sketch2.addConstraint(Sketcher.Constraint("DistanceX", 4, 2, 3, 2, Q("1.03827 mm")))
sketch2.addConstraint(Sketcher.Constraint("DistanceX", 0, 2, 11, 2, Q("2.883379 mm")))
sketch2.addConstraint(Sketcher.Constraint("DistanceY", 2, 2, 25, 2, Q("0.557971 mm")))
sketch2.addConstraint(Sketcher.Constraint("DistanceX", 32, 2, 30, 2, Q("1.09058 mm")))
sketch2.addConstraint(Sketcher.Constraint("DistanceX", 34, 2, 33, 2, Q("0.145041 mm")))
sketch2.addConstraint(Sketcher.Constraint("DistanceY", 35, 2, 39, 2, Q("1.50034 mm")))
sketch2.addConstraint(Sketcher.Constraint("DistanceX", 40, 2, 34, 2, Q("0.581748 mm")))
sketch2.addConstraint(Sketcher.Constraint("DistanceY", 40, 2, 34, 2, Q("0.283741 mm")))
sketch2.addConstraint(Sketcher.Constraint("DistanceY", 41, 2, 39, 2, Q("0.27106 mm")))
sketch2.addConstraint(Sketcher.Constraint("DistanceY", 31, 2, 44, 2, Q("1.22928 mm")))
sketch2.addConstraint(Sketcher.Constraint("DistanceX", 44, 2, 45, 2, Q("0.172781 mm")))
sketch2.addConstraint(Sketcher.Constraint("DistanceY", 45, 2, 44, 2, Q("0.504869 mm")))
sketch2.addConstraint(Sketcher.Constraint("DistanceY", 44, 2, 46, 2, Q("0.286911 mm")))
sketch2.addConstraint(Sketcher.Constraint("DistanceX", 33, 2, 46, 2, Q("0.773551 mm")))
pocket1 = body.newObject("PartDesign::Pocket", "Pocket")
pocket1.Profile = sketch2
pocket1.Length = 0.1
pocket1.Reversed = True

doc.recompute()
